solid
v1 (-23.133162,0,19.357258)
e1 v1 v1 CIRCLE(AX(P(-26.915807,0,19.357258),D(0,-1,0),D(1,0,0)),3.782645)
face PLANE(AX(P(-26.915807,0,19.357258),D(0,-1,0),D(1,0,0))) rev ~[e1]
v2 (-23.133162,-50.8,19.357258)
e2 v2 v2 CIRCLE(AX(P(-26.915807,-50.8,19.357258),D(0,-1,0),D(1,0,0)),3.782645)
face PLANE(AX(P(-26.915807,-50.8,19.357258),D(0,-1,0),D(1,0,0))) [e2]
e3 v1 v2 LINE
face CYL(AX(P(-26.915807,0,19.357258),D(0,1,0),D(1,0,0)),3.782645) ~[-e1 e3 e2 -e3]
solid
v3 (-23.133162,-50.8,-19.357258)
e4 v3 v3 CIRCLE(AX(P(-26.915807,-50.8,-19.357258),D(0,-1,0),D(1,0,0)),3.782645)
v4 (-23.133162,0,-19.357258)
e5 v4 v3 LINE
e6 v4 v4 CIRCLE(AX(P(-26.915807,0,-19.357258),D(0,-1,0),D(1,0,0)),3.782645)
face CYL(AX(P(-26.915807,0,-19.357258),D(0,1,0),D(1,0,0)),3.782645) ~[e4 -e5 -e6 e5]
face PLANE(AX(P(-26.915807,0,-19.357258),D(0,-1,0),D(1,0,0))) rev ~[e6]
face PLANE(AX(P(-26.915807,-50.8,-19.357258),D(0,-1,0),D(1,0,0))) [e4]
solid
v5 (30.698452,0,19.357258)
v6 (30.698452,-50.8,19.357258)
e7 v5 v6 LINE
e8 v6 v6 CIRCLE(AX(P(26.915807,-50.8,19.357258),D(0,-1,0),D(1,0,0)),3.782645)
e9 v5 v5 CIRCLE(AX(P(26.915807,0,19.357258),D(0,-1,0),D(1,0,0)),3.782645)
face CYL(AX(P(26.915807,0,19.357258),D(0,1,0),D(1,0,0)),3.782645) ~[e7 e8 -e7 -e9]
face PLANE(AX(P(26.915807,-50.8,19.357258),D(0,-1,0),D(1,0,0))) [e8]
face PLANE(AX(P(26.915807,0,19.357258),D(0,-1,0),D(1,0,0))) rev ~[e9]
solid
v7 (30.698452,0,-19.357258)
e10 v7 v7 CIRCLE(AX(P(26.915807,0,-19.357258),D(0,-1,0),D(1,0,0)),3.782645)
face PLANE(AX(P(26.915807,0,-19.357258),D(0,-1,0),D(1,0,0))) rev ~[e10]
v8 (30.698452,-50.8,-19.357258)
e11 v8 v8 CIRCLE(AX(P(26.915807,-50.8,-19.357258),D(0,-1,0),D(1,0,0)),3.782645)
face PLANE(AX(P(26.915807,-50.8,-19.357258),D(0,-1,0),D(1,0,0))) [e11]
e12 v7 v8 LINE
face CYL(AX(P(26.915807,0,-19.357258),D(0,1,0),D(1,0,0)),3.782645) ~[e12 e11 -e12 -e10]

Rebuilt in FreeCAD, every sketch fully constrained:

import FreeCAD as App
import Part
import Sketcher
from FreeCAD import Vector

doc = App.newDocument("Part")
params = doc.addObject("Spreadsheet::Sheet", "Params")
for row, (alias, value) in enumerate([
    ("pad1_length", "2 in"),
], start=1):
    params.set(f"A{row}", alias)
    params.set(f"B{row}", "=" + value)
    params.setAlias(f"B{row}", alias)

body = doc.addObject("PartDesign::Body", "Body")
body.AllowCompound = True

sketch1 = doc.addObject("Sketcher::SketchObject", "Sketch")
body.addObject(sketch1)
sketch1.AttachmentSupport = (doc.XZ_Plane, [""])
sketch1.MapMode = "FlatFace"
sketch1.addGeometry([
    Part.Circle(Vector(-26.9, 19.4, 0), Vector(0, 0, 1), 3.8),
    Part.Circle(Vector(26.9, 19.4, 0), Vector(0, 0, 1), 3.8),
    Part.Circle(Vector(26.9, -19.4, 0), Vector(0, 0, 1), 3.8),
    Part.Circle(Vector(-26.9, -19.4, 0), Vector(0, 0, 1), 3.8),
], False)
sketch1.addConstraint([
    Sketcher.Constraint("Equal", 0, 1),
    Sketcher.Constraint("Equal", 1, 2),
    Sketcher.Constraint("Equal", 2, 3),
    Sketcher.Constraint("Symmetric", 0, 3, 2, 3, -1, 1),
    Sketcher.Constraint("Symmetric", 1, 3, 3, 3, -1, 1),
    Sketcher.Constraint("Symmetric", 0, 3, 1, 3, -2),
    Sketcher.Constraint("Diameter", 0, 7.56529),
    Sketcher.Constraint("DistanceY", -1, 1, 0, 3, 19.357258),
    Sketcher.Constraint("DistanceX", 0, 3, -1, 1, 26.915807),
])
pad1 = doc.addObject("PartDesign::Pad", "Pad")
body.addObject(pad1)
pad1.Profile = sketch1
pad1.setExpression("Length", "Params.pad1_length")

doc.recompute()
